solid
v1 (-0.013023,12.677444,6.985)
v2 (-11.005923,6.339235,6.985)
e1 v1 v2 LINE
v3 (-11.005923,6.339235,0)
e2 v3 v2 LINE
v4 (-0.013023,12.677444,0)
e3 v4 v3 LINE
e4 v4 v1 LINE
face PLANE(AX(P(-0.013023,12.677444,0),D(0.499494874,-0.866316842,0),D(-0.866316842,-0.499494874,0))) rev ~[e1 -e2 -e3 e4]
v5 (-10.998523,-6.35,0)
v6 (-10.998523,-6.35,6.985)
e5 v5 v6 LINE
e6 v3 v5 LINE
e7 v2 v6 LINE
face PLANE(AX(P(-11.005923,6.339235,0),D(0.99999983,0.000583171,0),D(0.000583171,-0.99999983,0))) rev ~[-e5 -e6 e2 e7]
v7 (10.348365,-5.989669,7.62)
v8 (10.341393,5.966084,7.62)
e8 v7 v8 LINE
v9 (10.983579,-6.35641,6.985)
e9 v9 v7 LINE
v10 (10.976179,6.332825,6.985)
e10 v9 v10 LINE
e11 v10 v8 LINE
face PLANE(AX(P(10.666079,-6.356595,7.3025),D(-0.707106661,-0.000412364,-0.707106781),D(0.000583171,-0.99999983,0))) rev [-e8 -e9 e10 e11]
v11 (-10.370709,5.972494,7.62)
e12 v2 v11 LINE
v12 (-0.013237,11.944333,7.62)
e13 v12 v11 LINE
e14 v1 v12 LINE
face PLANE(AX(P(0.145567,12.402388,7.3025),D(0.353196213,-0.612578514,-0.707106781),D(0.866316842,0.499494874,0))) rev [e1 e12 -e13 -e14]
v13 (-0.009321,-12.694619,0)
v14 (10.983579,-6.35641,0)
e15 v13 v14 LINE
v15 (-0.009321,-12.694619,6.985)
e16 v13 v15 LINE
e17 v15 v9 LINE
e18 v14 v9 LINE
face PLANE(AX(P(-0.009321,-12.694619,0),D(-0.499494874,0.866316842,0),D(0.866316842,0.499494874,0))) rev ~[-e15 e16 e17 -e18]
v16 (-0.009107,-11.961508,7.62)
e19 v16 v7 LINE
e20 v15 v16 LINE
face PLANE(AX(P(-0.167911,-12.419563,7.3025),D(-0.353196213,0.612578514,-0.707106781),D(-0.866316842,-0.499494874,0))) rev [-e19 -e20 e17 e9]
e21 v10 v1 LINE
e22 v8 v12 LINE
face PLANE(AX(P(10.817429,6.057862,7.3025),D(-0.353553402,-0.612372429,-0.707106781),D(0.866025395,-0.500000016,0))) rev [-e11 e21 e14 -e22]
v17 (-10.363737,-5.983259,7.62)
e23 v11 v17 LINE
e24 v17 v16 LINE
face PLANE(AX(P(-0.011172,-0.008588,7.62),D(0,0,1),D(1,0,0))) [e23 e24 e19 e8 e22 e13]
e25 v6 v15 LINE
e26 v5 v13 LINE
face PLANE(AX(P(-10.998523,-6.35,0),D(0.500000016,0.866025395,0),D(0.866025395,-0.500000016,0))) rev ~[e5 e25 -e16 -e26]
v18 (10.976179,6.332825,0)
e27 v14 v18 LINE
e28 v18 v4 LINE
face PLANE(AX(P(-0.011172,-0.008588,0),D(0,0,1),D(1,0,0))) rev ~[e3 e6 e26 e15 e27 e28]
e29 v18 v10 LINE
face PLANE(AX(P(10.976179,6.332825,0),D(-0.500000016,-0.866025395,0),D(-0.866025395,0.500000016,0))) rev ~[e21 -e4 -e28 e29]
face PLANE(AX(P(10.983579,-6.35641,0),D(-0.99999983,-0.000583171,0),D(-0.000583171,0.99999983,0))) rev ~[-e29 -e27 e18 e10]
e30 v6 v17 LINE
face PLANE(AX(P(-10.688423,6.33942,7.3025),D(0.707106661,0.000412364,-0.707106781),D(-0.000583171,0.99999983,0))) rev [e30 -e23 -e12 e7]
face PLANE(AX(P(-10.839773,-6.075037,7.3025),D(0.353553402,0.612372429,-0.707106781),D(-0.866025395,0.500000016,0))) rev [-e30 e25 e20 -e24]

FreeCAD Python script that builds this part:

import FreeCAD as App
import Part
import Sketcher

V = App.Vector
Q = App.Units.Quantity


def edges_at(feature, points):
    """Names of the edges that pass closest to the given points."""
    edges = feature.Shape.Edges
    near = lambda p: min(range(len(edges)), key=lambda i: edges[i].distToShape(Part.Vertex(*p))[0])
    return sorted({f"Edge{near(p) + 1}" for p in points})


def add_polygon(sketch, points):
    """Adds a closed chain of lines whose ends are joined by coincident constraints."""
    first, n = sketch.GeometryCount, len(points)
    for a, b in zip(points, points[1:] + points[:1]):
        sketch.addGeometry(Part.LineSegment(App.Vector(*a, 0), App.Vector(*b, 0)), False)
    for i in range(n):
        sketch.addConstraint(Sketcher.Constraint("Coincident", first + i, 2, first + (i + 1) % n, 1))

doc = App.newDocument("Part")
params = doc.addObject("Spreadsheet::Sheet", "Params")
for row, (alias, value) in enumerate([
    ("pad1_length", "0.3 in"),
    ("chamfer_size", "0.025 in"),
], start=1):
    params.set(f"A{row}", alias)
    params.set(f"B{row}", "=" + value)
    params.setAlias(f"B{row}", alias)

body = doc.addObject("PartDesign::Body", "Body")

# Sketch on XY plane
sketch1 = doc.addObject("Sketcher::SketchObject", "Sketch")
body.addObject(sketch1)
sketch1.AttachmentSupport = (doc.XY_Plane, [""])
sketch1.MapMode = "FlatFace"
add_polygon(sketch1, [(10.976179, 6.332825), (-0.013023, 12.677444), (-11.005923, 6.339235), (-10.998523, -6.35), (-0.009321, -12.694619), (10.983579, -6.35641)])  # lines 0-5
sketch1.addConstraint(Sketcher.Constraint("Parallel", 0, 3))
sketch1.addConstraint(Sketcher.Constraint("Parallel", 1, 4))
sketch1.addConstraint(Sketcher.Constraint("Parallel", 2, 5))
sketch1.addConstraint(Sketcher.Constraint("Equal", 0, 1))
sketch1.addConstraint(Sketcher.Constraint("Equal", 1, 2))
sketch1.addConstraint(Sketcher.Constraint("Equal", 2, 3))
sketch1.addConstraint(Sketcher.Constraint("Angle", 0, Q("149.999999 deg")))
sketch1.addConstraint(Sketcher.Constraint("DistanceY", 2, 2, -1, 1, Q("0.25 in")))
sketch1.addConstraint(Sketcher.Constraint("DistanceX", 2, 2, 0, 2, Q("0.4325 in")))
sketch1.addConstraint(Sketcher.Constraint("DistanceY", 3, 2, 0, 2, Q("0.9989001 in")))
sketch1.addConstraint(Sketcher.Constraint("DistanceX", 1, 2, 0, 2, Q("10.9929 mm")))
sketch1.addConstraint(Sketcher.Constraint("DistanceX", 3, 2, -1, 1, Q("0.009321 mm")))
pad1 = doc.addObject("PartDesign::Pad", "Pad")
body.addObject(pad1)
pad1.Profile = sketch1
pad1.setExpression("Length", "Params.pad1_length")
doc.recompute()

chamfer = doc.addObject("PartDesign::Chamfer", "Chamfer")
body.addObject(chamfer)
chamfer.Base = (pad1, edges_at(pad1, [
    (10.98, -0.012, 7.62),
    (5.482, 9.505, 7.62),
    (-5.509, 9.508, 7.62),
    (-11.002, -0.005, 7.62),
    (-5.504, -9.522, 7.62),
    (5.487, -9.526, 7.62),
]))
chamfer.setExpression("Size", "Params.chamfer_size")

doc.recompute()
